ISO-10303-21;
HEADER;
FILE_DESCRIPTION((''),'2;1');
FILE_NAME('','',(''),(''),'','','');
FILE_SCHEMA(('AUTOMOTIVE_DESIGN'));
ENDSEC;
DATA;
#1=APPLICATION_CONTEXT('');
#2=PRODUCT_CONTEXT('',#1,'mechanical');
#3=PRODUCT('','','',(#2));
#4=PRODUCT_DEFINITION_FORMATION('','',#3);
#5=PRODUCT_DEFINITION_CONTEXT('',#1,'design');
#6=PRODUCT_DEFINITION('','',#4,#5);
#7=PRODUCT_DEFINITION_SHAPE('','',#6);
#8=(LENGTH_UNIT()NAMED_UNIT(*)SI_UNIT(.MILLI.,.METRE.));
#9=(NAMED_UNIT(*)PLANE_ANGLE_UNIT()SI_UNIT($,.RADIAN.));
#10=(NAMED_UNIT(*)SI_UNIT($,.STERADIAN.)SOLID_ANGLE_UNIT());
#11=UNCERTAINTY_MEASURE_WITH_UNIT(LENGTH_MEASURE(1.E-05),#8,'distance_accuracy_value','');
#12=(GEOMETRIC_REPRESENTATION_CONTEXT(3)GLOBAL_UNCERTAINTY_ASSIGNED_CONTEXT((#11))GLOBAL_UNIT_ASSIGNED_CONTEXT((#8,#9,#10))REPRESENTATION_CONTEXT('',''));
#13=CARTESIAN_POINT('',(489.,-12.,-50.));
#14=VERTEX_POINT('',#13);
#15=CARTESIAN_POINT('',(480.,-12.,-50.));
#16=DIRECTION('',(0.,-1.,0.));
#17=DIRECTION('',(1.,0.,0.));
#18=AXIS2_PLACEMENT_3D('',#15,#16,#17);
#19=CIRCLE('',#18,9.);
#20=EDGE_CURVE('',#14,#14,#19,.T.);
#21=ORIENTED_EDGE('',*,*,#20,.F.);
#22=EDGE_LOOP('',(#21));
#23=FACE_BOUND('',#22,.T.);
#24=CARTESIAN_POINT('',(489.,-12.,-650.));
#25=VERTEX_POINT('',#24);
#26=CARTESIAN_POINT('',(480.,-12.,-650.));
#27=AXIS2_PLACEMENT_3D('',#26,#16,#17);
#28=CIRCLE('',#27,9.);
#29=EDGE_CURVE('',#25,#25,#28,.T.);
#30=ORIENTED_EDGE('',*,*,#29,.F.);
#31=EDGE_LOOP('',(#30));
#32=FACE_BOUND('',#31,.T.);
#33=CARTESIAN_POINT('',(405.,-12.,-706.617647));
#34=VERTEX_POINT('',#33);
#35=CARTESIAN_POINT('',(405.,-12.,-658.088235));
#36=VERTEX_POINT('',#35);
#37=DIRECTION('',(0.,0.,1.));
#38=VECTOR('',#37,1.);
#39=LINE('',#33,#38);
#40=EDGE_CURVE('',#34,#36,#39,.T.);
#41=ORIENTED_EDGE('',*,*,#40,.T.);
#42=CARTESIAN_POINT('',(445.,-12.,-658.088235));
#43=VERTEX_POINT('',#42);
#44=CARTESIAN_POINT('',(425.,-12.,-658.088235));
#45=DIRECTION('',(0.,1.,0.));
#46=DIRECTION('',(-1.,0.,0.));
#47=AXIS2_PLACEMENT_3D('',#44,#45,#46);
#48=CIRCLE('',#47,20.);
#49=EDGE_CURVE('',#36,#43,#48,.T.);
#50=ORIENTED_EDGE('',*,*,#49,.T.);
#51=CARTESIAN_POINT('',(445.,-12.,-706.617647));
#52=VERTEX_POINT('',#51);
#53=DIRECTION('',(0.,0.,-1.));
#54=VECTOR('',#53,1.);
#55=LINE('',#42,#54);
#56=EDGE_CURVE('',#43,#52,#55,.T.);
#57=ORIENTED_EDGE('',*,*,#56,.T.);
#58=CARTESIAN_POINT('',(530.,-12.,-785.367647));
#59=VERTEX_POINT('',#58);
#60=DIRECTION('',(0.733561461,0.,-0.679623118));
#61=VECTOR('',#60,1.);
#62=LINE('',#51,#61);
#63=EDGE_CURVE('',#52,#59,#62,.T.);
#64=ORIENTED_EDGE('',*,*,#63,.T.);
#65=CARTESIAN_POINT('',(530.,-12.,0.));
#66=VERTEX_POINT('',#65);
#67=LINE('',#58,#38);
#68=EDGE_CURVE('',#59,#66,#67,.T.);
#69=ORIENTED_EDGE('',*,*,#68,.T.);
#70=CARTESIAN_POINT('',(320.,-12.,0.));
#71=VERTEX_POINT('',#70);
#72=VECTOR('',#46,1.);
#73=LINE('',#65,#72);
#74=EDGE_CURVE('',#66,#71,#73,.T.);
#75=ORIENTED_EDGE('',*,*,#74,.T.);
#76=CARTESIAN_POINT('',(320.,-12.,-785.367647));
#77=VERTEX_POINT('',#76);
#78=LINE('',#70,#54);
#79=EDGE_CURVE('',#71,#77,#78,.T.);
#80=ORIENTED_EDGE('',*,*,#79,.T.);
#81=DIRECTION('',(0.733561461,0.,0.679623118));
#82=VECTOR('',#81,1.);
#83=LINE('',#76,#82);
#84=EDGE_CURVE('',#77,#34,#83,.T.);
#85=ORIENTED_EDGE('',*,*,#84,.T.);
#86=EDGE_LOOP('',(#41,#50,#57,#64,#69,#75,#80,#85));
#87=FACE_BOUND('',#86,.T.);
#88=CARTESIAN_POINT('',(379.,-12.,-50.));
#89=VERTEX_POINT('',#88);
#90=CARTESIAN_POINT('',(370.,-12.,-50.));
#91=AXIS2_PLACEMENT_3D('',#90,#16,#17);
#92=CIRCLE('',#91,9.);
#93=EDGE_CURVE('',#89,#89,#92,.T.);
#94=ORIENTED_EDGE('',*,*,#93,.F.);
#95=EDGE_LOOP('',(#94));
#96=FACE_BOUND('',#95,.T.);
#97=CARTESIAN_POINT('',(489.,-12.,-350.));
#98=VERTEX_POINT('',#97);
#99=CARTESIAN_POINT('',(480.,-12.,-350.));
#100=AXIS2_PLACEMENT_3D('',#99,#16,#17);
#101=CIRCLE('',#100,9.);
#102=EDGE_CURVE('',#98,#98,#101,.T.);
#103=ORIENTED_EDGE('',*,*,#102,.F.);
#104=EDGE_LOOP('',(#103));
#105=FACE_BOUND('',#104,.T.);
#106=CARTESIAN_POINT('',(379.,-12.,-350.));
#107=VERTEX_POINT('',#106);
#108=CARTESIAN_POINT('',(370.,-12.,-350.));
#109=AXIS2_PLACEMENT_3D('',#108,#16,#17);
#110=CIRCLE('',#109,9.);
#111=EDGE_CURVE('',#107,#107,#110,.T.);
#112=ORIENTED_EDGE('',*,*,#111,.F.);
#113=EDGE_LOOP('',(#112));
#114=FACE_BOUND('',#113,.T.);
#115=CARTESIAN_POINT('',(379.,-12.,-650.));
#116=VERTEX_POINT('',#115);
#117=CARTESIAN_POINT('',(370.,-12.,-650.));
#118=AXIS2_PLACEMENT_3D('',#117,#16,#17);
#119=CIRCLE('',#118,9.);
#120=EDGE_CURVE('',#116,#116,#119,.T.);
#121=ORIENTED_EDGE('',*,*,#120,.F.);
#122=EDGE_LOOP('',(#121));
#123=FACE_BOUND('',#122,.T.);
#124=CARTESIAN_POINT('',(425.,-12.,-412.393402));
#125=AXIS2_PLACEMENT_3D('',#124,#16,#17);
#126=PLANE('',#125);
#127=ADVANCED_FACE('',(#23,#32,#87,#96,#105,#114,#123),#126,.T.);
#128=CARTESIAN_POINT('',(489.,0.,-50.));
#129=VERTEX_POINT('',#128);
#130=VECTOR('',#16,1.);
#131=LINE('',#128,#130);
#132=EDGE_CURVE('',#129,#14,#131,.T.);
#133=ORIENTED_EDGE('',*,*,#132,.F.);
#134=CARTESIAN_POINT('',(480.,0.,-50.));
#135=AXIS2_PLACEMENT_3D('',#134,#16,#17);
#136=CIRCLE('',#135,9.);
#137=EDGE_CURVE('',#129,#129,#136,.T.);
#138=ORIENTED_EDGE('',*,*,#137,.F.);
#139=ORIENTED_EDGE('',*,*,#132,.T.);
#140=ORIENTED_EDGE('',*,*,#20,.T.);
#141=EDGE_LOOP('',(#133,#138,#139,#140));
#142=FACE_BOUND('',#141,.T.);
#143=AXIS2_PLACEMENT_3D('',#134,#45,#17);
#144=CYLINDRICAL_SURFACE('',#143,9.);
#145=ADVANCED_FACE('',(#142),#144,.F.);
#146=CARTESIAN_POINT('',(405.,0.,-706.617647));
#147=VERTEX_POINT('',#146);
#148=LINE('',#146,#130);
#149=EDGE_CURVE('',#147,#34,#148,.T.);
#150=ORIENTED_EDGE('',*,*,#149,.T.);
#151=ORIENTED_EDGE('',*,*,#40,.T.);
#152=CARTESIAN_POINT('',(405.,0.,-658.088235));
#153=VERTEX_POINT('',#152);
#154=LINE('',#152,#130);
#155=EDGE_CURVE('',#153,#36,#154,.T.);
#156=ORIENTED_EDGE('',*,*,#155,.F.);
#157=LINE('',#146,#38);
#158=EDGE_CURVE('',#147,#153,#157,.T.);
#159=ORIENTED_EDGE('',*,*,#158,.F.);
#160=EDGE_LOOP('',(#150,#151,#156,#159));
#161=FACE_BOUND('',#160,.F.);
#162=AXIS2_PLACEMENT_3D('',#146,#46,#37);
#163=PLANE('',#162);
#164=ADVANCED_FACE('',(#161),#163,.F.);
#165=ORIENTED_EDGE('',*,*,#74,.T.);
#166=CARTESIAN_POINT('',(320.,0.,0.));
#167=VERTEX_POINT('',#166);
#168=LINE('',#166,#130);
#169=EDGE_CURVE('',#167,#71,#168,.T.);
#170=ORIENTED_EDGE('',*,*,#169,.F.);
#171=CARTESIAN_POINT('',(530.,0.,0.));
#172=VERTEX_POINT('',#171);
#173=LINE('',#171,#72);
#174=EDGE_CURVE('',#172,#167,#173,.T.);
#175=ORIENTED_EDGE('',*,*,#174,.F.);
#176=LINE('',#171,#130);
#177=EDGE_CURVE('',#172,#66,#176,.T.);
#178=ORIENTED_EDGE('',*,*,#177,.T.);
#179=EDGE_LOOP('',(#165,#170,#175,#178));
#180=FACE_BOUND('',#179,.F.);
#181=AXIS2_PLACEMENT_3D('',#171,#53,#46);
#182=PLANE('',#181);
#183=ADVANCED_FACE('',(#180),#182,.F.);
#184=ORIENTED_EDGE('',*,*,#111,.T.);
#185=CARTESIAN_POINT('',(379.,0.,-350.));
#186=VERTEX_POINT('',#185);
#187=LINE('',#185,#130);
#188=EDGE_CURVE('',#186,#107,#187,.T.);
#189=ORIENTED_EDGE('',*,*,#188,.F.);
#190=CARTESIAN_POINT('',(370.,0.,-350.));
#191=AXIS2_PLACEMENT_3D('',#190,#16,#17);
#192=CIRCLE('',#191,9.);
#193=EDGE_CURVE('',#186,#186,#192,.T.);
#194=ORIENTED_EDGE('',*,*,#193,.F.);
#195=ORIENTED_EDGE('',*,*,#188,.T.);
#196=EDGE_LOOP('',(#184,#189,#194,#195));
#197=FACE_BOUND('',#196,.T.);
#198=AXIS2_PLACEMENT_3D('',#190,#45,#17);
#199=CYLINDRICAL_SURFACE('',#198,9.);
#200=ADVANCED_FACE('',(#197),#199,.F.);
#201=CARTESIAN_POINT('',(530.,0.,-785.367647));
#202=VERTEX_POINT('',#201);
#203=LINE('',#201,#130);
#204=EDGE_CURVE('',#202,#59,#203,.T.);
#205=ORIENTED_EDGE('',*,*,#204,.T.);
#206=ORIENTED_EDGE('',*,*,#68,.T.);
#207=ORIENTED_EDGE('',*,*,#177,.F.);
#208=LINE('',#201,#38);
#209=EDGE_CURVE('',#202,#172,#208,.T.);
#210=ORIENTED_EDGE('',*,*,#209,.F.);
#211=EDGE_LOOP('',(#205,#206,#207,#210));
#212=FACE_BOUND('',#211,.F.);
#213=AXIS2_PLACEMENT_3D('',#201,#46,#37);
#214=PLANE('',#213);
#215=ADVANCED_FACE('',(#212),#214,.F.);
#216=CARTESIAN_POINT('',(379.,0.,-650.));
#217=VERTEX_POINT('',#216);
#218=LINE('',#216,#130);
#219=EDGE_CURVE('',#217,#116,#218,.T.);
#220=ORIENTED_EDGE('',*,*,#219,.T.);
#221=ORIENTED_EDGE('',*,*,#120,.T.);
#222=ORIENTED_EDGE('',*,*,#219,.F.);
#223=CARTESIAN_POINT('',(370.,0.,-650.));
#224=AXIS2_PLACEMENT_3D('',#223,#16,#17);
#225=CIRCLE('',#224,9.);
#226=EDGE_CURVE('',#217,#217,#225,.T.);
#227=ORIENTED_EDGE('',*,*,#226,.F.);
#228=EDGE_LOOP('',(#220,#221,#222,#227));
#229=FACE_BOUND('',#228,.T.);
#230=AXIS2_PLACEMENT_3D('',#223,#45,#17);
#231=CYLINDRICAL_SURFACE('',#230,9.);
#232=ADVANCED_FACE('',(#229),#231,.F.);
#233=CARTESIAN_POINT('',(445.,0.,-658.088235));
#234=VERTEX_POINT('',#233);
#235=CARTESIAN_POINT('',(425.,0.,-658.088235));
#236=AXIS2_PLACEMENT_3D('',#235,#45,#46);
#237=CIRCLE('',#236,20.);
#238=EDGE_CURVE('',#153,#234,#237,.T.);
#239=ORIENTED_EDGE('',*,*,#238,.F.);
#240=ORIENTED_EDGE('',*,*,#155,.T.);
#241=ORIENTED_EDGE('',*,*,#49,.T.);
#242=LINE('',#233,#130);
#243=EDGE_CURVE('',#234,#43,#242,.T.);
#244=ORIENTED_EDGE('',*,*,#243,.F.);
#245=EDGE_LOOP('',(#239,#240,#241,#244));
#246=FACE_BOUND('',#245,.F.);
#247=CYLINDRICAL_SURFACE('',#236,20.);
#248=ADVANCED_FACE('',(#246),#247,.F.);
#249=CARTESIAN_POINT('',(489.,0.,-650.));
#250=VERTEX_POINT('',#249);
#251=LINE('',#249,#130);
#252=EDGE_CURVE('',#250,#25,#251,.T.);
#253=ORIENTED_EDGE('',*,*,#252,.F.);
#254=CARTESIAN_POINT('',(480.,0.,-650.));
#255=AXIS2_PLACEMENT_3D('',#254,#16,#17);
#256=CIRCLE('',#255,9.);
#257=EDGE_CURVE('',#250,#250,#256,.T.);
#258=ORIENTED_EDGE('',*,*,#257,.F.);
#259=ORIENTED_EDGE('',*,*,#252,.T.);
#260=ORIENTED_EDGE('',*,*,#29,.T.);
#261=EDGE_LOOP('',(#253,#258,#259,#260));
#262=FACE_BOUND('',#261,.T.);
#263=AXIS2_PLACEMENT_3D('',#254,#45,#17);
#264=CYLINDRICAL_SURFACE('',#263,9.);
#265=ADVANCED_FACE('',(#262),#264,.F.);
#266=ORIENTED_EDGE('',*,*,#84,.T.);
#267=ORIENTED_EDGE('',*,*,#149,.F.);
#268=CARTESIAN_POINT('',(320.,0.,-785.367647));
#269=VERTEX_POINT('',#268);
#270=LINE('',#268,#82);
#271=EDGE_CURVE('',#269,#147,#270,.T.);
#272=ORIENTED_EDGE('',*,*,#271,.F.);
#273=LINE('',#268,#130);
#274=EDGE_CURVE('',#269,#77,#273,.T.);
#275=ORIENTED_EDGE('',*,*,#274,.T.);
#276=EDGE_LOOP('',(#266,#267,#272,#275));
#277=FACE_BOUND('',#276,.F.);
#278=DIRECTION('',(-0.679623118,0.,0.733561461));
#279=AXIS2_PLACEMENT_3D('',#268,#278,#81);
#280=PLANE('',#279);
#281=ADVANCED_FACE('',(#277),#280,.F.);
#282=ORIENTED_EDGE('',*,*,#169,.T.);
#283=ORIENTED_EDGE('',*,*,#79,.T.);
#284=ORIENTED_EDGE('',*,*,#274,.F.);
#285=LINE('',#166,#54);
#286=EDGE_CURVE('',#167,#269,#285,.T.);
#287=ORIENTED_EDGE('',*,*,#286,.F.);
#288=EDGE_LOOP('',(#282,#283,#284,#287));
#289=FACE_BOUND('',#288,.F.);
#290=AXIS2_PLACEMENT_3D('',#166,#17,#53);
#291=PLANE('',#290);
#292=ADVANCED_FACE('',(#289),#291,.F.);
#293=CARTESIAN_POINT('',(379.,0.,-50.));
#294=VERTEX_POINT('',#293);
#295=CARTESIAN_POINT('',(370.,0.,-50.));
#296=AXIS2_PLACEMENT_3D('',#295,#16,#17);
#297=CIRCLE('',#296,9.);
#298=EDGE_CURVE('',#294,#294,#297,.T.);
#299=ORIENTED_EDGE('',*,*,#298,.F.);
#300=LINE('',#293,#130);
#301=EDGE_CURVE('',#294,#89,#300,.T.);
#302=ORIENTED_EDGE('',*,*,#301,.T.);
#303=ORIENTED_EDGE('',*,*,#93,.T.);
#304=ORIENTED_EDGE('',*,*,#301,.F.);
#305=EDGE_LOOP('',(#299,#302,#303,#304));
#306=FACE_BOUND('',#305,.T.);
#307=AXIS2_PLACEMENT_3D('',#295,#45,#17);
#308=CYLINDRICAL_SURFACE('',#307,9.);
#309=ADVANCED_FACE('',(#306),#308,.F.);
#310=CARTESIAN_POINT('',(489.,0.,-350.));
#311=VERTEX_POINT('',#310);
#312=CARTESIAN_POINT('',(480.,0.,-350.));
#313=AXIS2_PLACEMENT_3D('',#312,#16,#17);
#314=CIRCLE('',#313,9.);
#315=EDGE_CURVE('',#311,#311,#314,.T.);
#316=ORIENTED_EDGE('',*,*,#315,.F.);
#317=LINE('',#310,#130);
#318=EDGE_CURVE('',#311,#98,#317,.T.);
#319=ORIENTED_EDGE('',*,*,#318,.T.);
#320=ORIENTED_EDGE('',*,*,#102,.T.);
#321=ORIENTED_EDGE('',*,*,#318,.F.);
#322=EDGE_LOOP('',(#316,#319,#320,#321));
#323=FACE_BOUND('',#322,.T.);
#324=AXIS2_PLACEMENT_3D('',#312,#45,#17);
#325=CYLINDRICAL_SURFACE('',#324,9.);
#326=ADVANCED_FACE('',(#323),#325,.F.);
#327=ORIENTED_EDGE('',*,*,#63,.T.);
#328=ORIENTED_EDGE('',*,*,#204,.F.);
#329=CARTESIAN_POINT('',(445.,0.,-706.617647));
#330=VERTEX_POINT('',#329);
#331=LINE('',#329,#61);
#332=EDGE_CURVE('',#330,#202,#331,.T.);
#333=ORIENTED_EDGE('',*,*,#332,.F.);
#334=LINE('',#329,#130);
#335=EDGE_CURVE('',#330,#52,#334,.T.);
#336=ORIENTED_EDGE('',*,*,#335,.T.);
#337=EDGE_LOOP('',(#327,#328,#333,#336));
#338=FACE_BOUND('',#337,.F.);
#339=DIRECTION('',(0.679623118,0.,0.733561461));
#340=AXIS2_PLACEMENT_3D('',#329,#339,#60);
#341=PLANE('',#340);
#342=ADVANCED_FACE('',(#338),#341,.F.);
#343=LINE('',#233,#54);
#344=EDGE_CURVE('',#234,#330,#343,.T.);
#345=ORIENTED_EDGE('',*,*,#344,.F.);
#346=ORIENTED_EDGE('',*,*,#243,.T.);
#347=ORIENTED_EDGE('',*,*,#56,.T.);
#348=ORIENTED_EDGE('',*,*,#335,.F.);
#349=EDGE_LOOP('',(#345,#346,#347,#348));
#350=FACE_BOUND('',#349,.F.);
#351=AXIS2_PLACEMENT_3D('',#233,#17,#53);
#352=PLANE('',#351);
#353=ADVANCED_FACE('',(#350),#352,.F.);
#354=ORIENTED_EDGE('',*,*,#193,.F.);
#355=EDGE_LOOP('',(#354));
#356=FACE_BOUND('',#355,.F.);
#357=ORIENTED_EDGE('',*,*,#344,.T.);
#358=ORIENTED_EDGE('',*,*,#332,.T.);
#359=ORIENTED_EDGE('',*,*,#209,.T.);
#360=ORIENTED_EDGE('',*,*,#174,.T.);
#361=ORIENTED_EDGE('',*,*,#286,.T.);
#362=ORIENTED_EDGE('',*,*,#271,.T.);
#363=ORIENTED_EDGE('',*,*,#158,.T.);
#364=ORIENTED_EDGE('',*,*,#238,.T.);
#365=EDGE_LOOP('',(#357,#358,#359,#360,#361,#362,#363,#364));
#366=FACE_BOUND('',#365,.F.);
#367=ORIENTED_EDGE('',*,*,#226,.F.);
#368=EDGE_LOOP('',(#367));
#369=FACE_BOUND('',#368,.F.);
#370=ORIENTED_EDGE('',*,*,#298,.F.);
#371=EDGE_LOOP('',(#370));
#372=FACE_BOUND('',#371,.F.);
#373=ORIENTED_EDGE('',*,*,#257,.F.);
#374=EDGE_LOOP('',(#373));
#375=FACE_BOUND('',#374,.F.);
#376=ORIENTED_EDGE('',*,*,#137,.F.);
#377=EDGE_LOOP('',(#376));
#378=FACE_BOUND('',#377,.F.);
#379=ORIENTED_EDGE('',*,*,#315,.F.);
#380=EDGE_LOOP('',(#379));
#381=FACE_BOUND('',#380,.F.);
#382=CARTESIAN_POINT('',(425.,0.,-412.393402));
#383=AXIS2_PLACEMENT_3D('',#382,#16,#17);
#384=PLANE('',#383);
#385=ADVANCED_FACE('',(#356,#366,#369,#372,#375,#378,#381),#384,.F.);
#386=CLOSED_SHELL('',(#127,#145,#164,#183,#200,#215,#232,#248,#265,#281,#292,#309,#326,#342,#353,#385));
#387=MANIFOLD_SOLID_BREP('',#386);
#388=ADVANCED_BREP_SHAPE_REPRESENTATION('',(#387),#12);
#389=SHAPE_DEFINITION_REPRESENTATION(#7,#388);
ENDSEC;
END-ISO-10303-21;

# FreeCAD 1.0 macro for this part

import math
import FreeCAD as App
import Part
import Sketcher

doc = App.newDocument("Part")
body = doc.addObject("PartDesign::Body", "Body")

# Sketch on XZ plane
sketch1 = doc.addObject("Sketcher::SketchObject", "Sketch")
body.addObject(sketch1)
sketch1.AttachmentSupport = (doc.XZ_Plane, [""])
sketch1.MapMode = "FlatFace"
sketch1.addGeometry(Part.LineSegment(App.Vector(530, 0, 0), App.Vector(320, 0, 0)), False)
sketch1.addGeometry(Part.LineSegment(App.Vector(320, 0, 0), App.Vector(320, -785, 0)), False)
sketch1.addGeometry(Part.LineSegment(App.Vector(320, -785, 0), App.Vector(405, -707, 0)), False)
sketch1.addGeometry(Part.LineSegment(App.Vector(405, -707, 0), App.Vector(405, -658, 0)), False)
sketch1.addGeometry(Part.ArcOfCircle(Part.Circle(App.Vector(425, -658, 0), App.Vector(0, 0, 1), 20), math.radians(0), math.radians(180)), False)
sketch1.addGeometry(Part.LineSegment(App.Vector(445, -658, 0), App.Vector(445, -707, 0)), False)
sketch1.addGeometry(Part.LineSegment(App.Vector(445, -707, 0), App.Vector(530, -785, 0)), False)
sketch1.addGeometry(Part.LineSegment(App.Vector(530, -785, 0), App.Vector(530, 0, 0)), False)
sketch1.addGeometry(Part.Circle(App.Vector(370, -650, 0), App.Vector(0, 0, 1), 9), False)
sketch1.addGeometry(Part.Circle(App.Vector(480, -650, 0), App.Vector(0, 0, 1), 9), False)
sketch1.addGeometry(Part.Circle(App.Vector(370, -350, 0), App.Vector(0, 0, 1), 9), False)
sketch1.addGeometry(Part.Circle(App.Vector(370, -50, 0), App.Vector(0, 0, 1), 9), False)
sketch1.addGeometry(Part.Circle(App.Vector(480, -350, 0), App.Vector(0, 0, 1), 9), False)
sketch1.addGeometry(Part.Circle(App.Vector(480, -50, 0), App.Vector(0, 0, 1), 9), False)
sketch1.addConstraint(Sketcher.Constraint("Coincident", 0, 2, 1, 1))
sketch1.addConstraint(Sketcher.Constraint("Coincident", 1, 2, 2, 1))
sketch1.addConstraint(Sketcher.Constraint("Coincident", 2, 2, 3, 1))
sketch1.addConstraint(Sketcher.Constraint("Tangent", 3, 2, 4, 2))
sketch1.addConstraint(Sketcher.Constraint("Tangent", 4, 1, 5, 1))
sketch1.addConstraint(Sketcher.Constraint("Coincident", 5, 2, 6, 1))
sketch1.addConstraint(Sketcher.Constraint("Coincident", 6, 2, 7, 1))
sketch1.addConstraint(Sketcher.Constraint("Coincident", 7, 2, 0, 1))
sketch1.addConstraint(Sketcher.Constraint("Horizontal", 0))
sketch1.addConstraint(Sketcher.Constraint("Vertical", 1))
sketch1.addConstraint(Sketcher.Constraint("Vertical", 3))
sketch1.addConstraint(Sketcher.Constraint("Vertical", 5))
sketch1.addConstraint(Sketcher.Constraint("Vertical", 7))
sketch1.addConstraint(Sketcher.Constraint("Equal", 8, 9))
sketch1.addConstraint(Sketcher.Constraint("Equal", 9, 10))
sketch1.addConstraint(Sketcher.Constraint("Equal", 10, 11))
sketch1.addConstraint(Sketcher.Constraint("Equal", 11, 12))
sketch1.addConstraint(Sketcher.Constraint("Equal", 12, 13))
sketch1.addConstraint(Sketcher.Constraint("PointOnObject", 0, 2, -1))
sketch1.addConstraint(Sketcher.Constraint("Horizontal", 8, 3, 9, 3))
sketch1.addConstraint(Sketcher.Constraint("Horizontal", 10, 3, 12, 3))
sketch1.addConstraint(Sketcher.Constraint("Horizontal", 11, 3, 13, 3))
sketch1.addConstraint(Sketcher.Constraint("Horizontal", 2, 2, 5, 2))
sketch1.addConstraint(Sketcher.Constraint("Horizontal", 1, 2, 6, 2))
sketch1.addConstraint(Sketcher.Constraint("Vertical", 8, 3, 10, 3))
sketch1.addConstraint(Sketcher.Constraint("Vertical", 10, 3, 11, 3))
sketch1.addConstraint(Sketcher.Constraint("Vertical", 9, 3, 12, 3))
sketch1.addConstraint(Sketcher.Constraint("Vertical", 12, 3, 13, 3))
sketch1.addConstraint(Sketcher.Constraint("Equal", 2, 6))
sketch1.addConstraint(Sketcher.Constraint("Diameter", 8, 18.0))
sketch1.addConstraint(Sketcher.Constraint("Radius", 4, 20.0))
sketch1.addConstraint(Sketcher.Constraint("DistanceX", 0, 2, 0, 1, 210.0))
sketch1.addConstraint(Sketcher.Constraint("DistanceX", -1, 1, 4, 3, 425.0))
sketch1.addConstraint(Sketcher.Constraint("DistanceX", -1, 1, 8, 3, 370.0))
sketch1.addConstraint(Sketcher.Constraint("DistanceY", 8, 3, -1, 1, 650.0))
sketch1.addConstraint(Sketcher.Constraint("DistanceX", -1, 1, 9, 3, 480.0))
sketch1.addConstraint(Sketcher.Constraint("DistanceY", 10, 3, -1, 1, 350.0))
sketch1.addConstraint(Sketcher.Constraint("DistanceY", 11, 3, -1, 1, 50.0))
sketch1.addConstraint(Sketcher.Constraint("DistanceY", 1, 2, 2, 2, 78.75))
sketch1.addConstraint(Sketcher.Constraint("DistanceY", 3, 1, 3, 2, 48.529412))
sketch1.addConstraint(Sketcher.Constraint("DistanceY", 1, 2, 1, 1, 785.367647))
pad1 = doc.addObject("PartDesign::Pad", "Pad")
body.addObject(pad1)
pad1.Profile = sketch1
pad1.Length = 12

doc.recompute()
